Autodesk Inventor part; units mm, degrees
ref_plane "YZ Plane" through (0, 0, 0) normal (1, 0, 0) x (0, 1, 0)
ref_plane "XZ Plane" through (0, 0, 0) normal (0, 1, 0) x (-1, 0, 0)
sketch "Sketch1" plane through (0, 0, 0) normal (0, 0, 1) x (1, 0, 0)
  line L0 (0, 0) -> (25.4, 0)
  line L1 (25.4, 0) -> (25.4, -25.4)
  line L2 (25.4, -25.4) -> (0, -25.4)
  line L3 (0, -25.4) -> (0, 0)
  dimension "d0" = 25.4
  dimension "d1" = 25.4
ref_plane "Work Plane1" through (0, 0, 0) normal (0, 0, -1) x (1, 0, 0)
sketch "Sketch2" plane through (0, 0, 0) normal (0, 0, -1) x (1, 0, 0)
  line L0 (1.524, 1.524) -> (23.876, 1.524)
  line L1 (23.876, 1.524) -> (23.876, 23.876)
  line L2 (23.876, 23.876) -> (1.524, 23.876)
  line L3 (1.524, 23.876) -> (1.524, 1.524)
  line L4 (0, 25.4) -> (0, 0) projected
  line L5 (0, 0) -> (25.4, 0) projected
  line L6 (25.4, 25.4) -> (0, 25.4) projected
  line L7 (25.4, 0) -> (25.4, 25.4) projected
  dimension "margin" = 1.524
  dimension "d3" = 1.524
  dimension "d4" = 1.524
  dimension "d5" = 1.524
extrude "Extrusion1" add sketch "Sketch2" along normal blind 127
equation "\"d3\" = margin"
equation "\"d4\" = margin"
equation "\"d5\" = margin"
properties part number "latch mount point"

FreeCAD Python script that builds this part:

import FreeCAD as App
import Part
import Sketcher

V = App.Vector
Q = App.Units.Quantity


def add_polygon(sketch, points):
    """Adds a closed chain of lines whose ends are joined by coincident constraints."""
    first, n = sketch.GeometryCount, len(points)
    for a, b in zip(points, points[1:] + points[:1]):
        sketch.addGeometry(Part.LineSegment(App.Vector(*a, 0), App.Vector(*b, 0)), False)
    for i in range(n):
        sketch.addConstraint(Sketcher.Constraint("Coincident", first + i, 2, first + (i + 1) % n, 1))

doc = App.newDocument("Part")
body = doc.addObject("PartDesign::Body", "Body")

sketch1 = doc.addObject("Sketcher::SketchObject", "Sketch")
body.addObject(sketch1)
sketch1.AttachmentSupport = (doc.XY_Plane, [""])
sketch1.MapMode = "FlatFace"
add_polygon(sketch1, [(25.4, -25.4), (0, -25.4), (0, 0), (25.4, 0)])
add_polygon(sketch1, [(23.876, -1.524), (1.524, -1.524), (1.524, -23.876), (23.876, -23.876)])
sketch1.addConstraint(Sketcher.Constraint("Horizontal", 0))
sketch1.addConstraint(Sketcher.Constraint("Vertical", 1))
sketch1.addConstraint(Sketcher.Constraint("Horizontal", 2))
sketch1.addConstraint(Sketcher.Constraint("Vertical", 3))
sketch1.addConstraint(Sketcher.Constraint("Horizontal", 4))
sketch1.addConstraint(Sketcher.Constraint("Vertical", 5))
sketch1.addConstraint(Sketcher.Constraint("Horizontal", 6))
sketch1.addConstraint(Sketcher.Constraint("Vertical", 7))
sketch1.addConstraint(Sketcher.Constraint("Coincident", 1, 2, -1, 1))
sketch1.addConstraint(Sketcher.Constraint("Equal", 2, 1))
sketch1.addConstraint(Sketcher.Constraint("Equal", 6, 5))
sketch1.addConstraint(Sketcher.Constraint("DistanceX", 0, 2, 0, 1, Q("1 in")))
sketch1.addConstraint(Sketcher.Constraint("DistanceX", -1, 1, 4, 2, Q("0.06 in")))
sketch1.addConstraint(Sketcher.Constraint("DistanceY", 4, 2, -1, 1, Q("0.06 in")))
sketch1.addConstraint(Sketcher.Constraint("DistanceY", 0, 2, 5, 2, Q("0.06 in")))
pad1 = doc.addObject("PartDesign::Pad", "Pad")
body.addObject(pad1)
pad1.Profile = sketch1
pad1.Length = Q("5 in")
pad1.Reversed = True

doc.recompute()
